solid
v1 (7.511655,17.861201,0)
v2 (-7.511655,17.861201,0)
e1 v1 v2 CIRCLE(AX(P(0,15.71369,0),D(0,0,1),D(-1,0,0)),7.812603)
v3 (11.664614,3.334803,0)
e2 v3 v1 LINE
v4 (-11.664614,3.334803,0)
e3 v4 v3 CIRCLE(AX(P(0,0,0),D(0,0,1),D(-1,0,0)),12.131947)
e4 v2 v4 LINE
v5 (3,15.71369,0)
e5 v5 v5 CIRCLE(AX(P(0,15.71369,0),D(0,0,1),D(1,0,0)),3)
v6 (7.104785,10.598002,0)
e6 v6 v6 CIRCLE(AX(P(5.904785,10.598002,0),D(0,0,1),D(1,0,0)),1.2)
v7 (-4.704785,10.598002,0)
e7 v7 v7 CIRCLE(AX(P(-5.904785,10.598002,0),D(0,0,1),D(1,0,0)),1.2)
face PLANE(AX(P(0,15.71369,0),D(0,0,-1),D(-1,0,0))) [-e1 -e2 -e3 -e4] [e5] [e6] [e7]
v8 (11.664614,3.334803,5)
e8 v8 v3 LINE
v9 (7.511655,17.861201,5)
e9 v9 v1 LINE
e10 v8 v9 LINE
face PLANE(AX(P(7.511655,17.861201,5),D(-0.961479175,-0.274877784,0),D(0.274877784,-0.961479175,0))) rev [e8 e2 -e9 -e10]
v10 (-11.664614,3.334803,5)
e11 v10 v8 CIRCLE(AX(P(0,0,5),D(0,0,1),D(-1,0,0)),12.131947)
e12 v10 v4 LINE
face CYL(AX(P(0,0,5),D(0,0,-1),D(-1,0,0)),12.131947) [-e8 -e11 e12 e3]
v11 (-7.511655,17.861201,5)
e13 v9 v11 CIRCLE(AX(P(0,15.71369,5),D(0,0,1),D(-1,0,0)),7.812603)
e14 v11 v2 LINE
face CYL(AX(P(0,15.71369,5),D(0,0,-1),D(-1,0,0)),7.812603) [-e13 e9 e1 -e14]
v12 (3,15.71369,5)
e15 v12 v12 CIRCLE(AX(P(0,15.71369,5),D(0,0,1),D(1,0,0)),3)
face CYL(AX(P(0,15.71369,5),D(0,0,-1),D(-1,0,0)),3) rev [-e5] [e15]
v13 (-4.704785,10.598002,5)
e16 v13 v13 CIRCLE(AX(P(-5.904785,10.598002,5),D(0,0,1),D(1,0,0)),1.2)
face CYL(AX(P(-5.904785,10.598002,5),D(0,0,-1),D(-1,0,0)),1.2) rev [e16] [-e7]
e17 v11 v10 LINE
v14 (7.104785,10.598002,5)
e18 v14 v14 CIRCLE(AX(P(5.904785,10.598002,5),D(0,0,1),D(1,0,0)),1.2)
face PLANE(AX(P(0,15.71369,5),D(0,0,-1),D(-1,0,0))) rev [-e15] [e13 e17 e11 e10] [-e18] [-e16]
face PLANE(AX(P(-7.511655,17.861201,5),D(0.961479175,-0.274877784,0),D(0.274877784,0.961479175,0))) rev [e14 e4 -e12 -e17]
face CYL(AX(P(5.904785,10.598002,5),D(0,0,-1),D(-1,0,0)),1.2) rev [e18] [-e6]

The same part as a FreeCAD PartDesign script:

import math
import FreeCAD as App
import Part
import Sketcher

V = App.Vector

doc = App.newDocument("Part")
params = doc.addObject("Spreadsheet::Sheet", "Params")
for row, (alias, value) in enumerate([
    ("sketch1_diameter", "6 mm"),
    ("sketch1_diameter2", "2.4 mm"),
    ("pad1_length", "5 mm"),
], start=1):
    params.set(f"A{row}", alias)
    params.set(f"B{row}", "=" + value)
    params.setAlias(f"B{row}", alias)

body = doc.addObject("PartDesign::Body", "Body")

# Sketch on XY plane
sketch1 = body.newObject("Sketcher::SketchObject", "Sketch")
sketch1.AttachmentSupport = (doc.getObject("XY_Plane"), [""])
sketch1.MapMode = "FlatFace"
sketch1.addGeometry([
    Part.LineSegment(V(11.7, 3.3, 0), V(7.5, 17.9, 0)),  # 0
    Part.ArcOfCircle(Part.Circle(V(0, 15.7, 0), V(0, 0, 1), 7.8), math.radians(16), math.radians(164)),  # 1
    Part.LineSegment(V(-7.5, 17.9, 0), V(-11.7, 3.3, 0)),  # 2
    Part.ArcOfCircle(Part.Circle(V(0, 0, 0), V(0, 0, 1), 12.1), math.radians(164), math.radians(376)),  # 3
    Part.Circle(V(5.9, 10.6, 0), V(0, 0, 1), 1.2),  # 4
    Part.Circle(V(-5.9, 10.6, 0), V(0, 0, 1), 1.2),  # 5
    Part.Circle(V(0, 15.7, 0), V(0, 0, 1), 3),  # 6
], False)
sketch1.addConstraint([
    Sketcher.Constraint("Tangent", 0, 2, 1, 1),
    Sketcher.Constraint("Tangent", 1, 2, 2, 1),
    Sketcher.Constraint("Tangent", 2, 2, 3, 1),
    Sketcher.Constraint("Tangent", 3, 2, 0, 1),
    Sketcher.Constraint("Coincident", 3, 3, -1, 1),
    Sketcher.Constraint("Coincident", 6, 3, 1, 3),
    Sketcher.Constraint("Equal", 4, 5),
    Sketcher.Constraint("Symmetric", 4, 3, 5, 3, -2),
    Sketcher.Constraint("PointOnObject", 1, 3, -2),
    Sketcher.Constraint("Diameter", 6, 6.0),
    Sketcher.Constraint("Diameter", 4, 2.4),
    Sketcher.Constraint("DistanceY", -1, 1, 4, 3, 10.598002),
    Sketcher.Constraint("Radius", 1, 7.812603),
    Sketcher.Constraint("Radius", 3, 12.131947),
    Sketcher.Constraint("DistanceY", -1, 1, 0, 2, 17.861201),
    Sketcher.Constraint("DistanceX", 5, 3, 4, 3, 11.809571),
])
sketch1.setExpression("Constraints[9]", "Params.sketch1_diameter")
sketch1.setExpression("Constraints[10]", "Params.sketch1_diameter2")
pad1 = body.newObject("PartDesign::Pad", "Pad")
pad1.Profile = sketch1
pad1.setExpression("Length", "Params.pad1_length")

doc.recompute()
